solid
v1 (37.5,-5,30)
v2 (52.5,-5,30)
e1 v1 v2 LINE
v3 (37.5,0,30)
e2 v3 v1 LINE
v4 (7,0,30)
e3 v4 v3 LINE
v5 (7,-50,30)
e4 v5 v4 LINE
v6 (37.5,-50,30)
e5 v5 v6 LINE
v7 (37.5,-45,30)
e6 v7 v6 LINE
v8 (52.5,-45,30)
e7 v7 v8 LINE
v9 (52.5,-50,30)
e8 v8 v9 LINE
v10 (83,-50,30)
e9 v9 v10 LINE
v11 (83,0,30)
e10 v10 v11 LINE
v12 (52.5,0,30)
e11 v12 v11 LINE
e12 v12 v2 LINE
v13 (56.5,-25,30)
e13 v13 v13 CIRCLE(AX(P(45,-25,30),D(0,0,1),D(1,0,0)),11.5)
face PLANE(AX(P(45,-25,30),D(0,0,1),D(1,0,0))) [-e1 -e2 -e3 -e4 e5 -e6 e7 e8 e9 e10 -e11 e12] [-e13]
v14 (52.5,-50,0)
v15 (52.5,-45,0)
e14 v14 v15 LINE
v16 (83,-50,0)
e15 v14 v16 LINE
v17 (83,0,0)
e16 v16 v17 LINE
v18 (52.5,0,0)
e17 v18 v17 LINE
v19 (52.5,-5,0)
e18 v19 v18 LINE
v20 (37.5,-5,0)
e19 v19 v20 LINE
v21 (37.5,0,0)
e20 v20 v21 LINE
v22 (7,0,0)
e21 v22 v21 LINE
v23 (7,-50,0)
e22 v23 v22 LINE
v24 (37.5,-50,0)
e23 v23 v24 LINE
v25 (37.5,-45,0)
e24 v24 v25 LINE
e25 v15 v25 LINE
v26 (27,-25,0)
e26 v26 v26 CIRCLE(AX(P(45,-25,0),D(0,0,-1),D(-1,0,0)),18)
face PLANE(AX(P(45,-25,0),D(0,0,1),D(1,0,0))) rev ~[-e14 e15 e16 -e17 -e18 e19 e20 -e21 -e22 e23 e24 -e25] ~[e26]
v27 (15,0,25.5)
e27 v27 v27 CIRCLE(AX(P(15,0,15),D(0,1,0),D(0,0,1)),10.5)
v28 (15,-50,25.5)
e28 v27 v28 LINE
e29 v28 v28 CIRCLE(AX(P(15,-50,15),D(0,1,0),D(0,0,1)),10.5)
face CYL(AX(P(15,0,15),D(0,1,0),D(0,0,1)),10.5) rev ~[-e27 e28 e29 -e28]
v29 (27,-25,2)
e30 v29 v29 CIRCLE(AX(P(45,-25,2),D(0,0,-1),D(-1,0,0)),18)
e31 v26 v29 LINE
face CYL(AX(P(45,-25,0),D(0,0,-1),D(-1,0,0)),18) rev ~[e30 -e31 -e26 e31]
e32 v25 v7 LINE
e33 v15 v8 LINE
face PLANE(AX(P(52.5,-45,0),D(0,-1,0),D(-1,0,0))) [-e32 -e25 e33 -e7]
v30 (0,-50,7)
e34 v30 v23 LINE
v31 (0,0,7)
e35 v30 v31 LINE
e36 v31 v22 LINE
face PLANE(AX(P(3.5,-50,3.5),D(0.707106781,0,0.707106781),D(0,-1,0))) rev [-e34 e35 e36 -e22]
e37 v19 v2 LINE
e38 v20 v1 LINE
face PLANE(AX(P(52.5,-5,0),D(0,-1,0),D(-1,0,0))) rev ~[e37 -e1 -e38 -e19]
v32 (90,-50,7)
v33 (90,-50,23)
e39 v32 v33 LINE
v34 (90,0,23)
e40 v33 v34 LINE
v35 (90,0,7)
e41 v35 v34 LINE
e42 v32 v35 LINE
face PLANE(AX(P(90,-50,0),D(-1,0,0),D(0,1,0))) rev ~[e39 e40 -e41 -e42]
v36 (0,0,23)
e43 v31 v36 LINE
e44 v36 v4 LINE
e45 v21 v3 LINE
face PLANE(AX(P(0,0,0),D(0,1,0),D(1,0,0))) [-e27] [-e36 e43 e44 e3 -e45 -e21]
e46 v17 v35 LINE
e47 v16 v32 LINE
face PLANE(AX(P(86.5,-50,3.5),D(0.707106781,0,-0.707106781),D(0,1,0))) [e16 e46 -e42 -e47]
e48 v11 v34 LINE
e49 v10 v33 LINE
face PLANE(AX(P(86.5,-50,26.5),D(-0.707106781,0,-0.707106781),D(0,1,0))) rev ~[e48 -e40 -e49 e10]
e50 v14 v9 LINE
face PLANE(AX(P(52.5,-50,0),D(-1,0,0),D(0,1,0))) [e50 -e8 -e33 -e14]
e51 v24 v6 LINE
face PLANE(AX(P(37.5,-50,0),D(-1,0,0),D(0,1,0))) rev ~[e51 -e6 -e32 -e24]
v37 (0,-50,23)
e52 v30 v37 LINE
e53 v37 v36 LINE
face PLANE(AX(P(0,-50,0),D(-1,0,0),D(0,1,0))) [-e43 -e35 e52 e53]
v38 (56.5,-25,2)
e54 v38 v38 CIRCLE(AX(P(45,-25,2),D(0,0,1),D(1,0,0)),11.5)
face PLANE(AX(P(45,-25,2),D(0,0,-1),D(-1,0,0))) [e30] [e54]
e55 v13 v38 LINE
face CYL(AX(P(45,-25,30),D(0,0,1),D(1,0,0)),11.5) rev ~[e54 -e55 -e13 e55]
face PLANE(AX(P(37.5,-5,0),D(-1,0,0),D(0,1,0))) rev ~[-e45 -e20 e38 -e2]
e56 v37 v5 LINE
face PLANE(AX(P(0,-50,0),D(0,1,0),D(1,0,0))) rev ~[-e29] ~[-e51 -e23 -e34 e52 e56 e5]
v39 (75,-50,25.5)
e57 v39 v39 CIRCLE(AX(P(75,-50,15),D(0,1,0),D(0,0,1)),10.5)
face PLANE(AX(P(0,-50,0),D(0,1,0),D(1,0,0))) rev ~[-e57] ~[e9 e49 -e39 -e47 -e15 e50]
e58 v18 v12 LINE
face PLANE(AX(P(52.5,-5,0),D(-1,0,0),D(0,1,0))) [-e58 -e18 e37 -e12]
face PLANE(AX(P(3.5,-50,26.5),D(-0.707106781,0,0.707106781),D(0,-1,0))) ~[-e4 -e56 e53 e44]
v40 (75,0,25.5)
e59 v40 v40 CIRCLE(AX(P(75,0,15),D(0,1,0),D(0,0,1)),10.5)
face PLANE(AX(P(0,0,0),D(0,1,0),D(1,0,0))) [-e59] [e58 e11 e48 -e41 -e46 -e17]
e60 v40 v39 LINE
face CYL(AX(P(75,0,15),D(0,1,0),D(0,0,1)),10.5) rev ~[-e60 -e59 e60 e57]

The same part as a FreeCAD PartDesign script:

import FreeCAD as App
import Part
import Sketcher


def edges_at(feature, points):
    """Names of the edges that pass closest to the given points."""
    edges = feature.Shape.Edges
    near = lambda p: min(range(len(edges)), key=lambda i: edges[i].distToShape(Part.Vertex(*p))[0])
    return sorted({f"Edge{near(p) + 1}" for p in points})

doc = App.newDocument("Part")
params = doc.addObject("Spreadsheet::Sheet", "Params")
for row, (alias, value) in enumerate([
    ("sketch1_width", "90 mm"),
    ("sketch1_height", "50 mm"),
    ("pad1_length", "30 mm"),
    ("sketch2_diameter", "21 mm"),
    ("chamfer_size", "7 mm"),
    ("sketch3_diameter", "36 mm"),
    ("pocket2_length", "2 mm"),
    ("sketch4_diameter", "23 mm"),
    ("pocket3_length", "120 mm"),
    ("sketch5_width", "15 mm"),
    ("sketch5_height", "5 mm"),
    ("pocket4_length", "70 mm"),
], start=1):
    params.set(f"A{row}", alias)
    params.set(f"B{row}", "=" + value)
    params.setAlias(f"B{row}", alias)

body = doc.addObject("PartDesign::Body", "Body")

# Sketch on XY plane
sketch1 = body.newObject("Sketcher::SketchObject", "Sketch")
sketch1.AttachmentSupport = (doc.getObject("XY_Plane"), [""])
sketch1.MapMode = "FlatFace"
sketch1.addGeometry([
    Part.LineSegment(App.Vector(0, 0, 0), App.Vector(0, -50, 0)),
    Part.LineSegment(App.Vector(0, -50, 0), App.Vector(90, -50, 0)),
    Part.LineSegment(App.Vector(90, -50, 0), App.Vector(90, 0, 0)),
    Part.LineSegment(App.Vector(90, 0, 0), App.Vector(0, 0, 0)),
], False)
sketch1.addConstraint([
    Sketcher.Constraint("Coincident", 0, 2, 1, 1),
    Sketcher.Constraint("Coincident", 1, 2, 2, 1),
    Sketcher.Constraint("Coincident", 2, 2, 3, 1),
    Sketcher.Constraint("Coincident", 3, 2, 0, 1),
    Sketcher.Constraint("Vertical", 0),
    Sketcher.Constraint("Horizontal", 1),
    Sketcher.Constraint("Vertical", 2),
    Sketcher.Constraint("Horizontal", 3),
    Sketcher.Constraint("Coincident", 3, 2, -1, 1),
    Sketcher.Constraint("DistanceX", 1, 1, 1, 2, 90.0),
    Sketcher.Constraint("DistanceY", 0, 2, 0, 1, 50.0),
])
sketch1.setExpression("Constraints[9]", "Params.sketch1_width")
sketch1.setExpression("Constraints[10]", "Params.sketch1_height")
pad1 = body.newObject("PartDesign::Pad", "Pad")
pad1.Profile = sketch1
pad1.setExpression("Length", "Params.pad1_length")

# Sketch on XZ plane
sketch2 = body.newObject("Sketcher::SketchObject", "Sketch001")
sketch2.AttachmentSupport = (doc.getObject("XZ_Plane"), [""])
sketch2.MapMode = "FlatFace"
sketch2.addGeometry([
    Part.Circle(App.Vector(15, 15, 0), App.Vector(0, 0, 1), 10),
    Part.Circle(App.Vector(75, 15, 0), App.Vector(0, 0, 1), 10),
], False)
sketch2.addConstraint([
    Sketcher.Constraint("Equal", 0, 1),
    Sketcher.Constraint("Horizontal", 0, 3, 1, 3),
    Sketcher.Constraint("Diameter", 0, 21.0),
    Sketcher.Constraint("DistanceX", -1, 1, 0, 3, 15.0),
    Sketcher.Constraint("DistanceY", -1, 1, 0, 3, 15.0),
    Sketcher.Constraint("DistanceX", -1, 1, 1, 3, 75.0),
])
sketch2.setExpression("Constraints[2]", "Params.sketch2_diameter")
pocket1 = body.newObject("PartDesign::Pocket", "Pocket")
pocket1.Profile = sketch2
pocket1.Type = "ThroughAll"
pocket1.Reversed = True
doc.recompute()

chamfer = body.newObject("PartDesign::Chamfer", "Chamfer")
chamfer.Base = (pocket1, edges_at(pocket1, [
    (90, -25, 30),
    (0, -25, 30),
    (90, -25, 0),
    (0, -25, 0),
]))
chamfer.setExpression("Size", "Params.chamfer_size")

# Sketch on XY plane
sketch3 = body.newObject("Sketcher::SketchObject", "Sketch002")
sketch3.AttachmentSupport = (doc.getObject("XY_Plane"), [""])
sketch3.MapMode = "FlatFace"
sketch3.addGeometry(Part.Circle(App.Vector(45, -25, 0), App.Vector(0, 0, 1), 18), False)
sketch3.addConstraint([
    Sketcher.Constraint("Diameter", 0, 36.0),
    Sketcher.Constraint("DistanceX", -1, 1, 0, 3, 45.0),
    Sketcher.Constraint("DistanceY", 0, 3, -1, 1, 25.0),
])
sketch3.setExpression("Constraints[0]", "Params.sketch3_diameter")
pocket2 = body.newObject("PartDesign::Pocket", "Pocket001")
pocket2.Profile = sketch3
pocket2.setExpression("Length", "Params.pocket2_length")
pocket2.Reversed = True

# Sketch on XY plane
sketch4 = body.newObject("Sketcher::SketchObject", "Sketch003")
sketch4.AttachmentSupport = (doc.getObject("XY_Plane"), [""])
sketch4.MapMode = "FlatFace"
sketch4.AttachmentOffset = App.Placement(App.Vector(0, 0, 30), App.Rotation())
sketch4.addGeometry(Part.Circle(App.Vector(45, -25, 0), App.Vector(0, 0, 1), 12), False)
sketch4.addConstraint([
    Sketcher.Constraint("Diameter", 0, 23.0),
    Sketcher.Constraint("DistanceX", -1, 1, 0, 3, 45.0),
    Sketcher.Constraint("DistanceY", 0, 3, -1, 1, 25.0),
])
sketch4.setExpression("Constraints[0]", "Params.sketch4_diameter")
pocket3 = body.newObject("PartDesign::Pocket", "Pocket002")
pocket3.Profile = sketch4
pocket3.setExpression("Length", "Params.pocket3_length")

# Sketch on XY plane
sketch5 = body.newObject("Sketcher::SketchObject", "Sketch004")
sketch5.AttachmentSupport = (doc.getObject("XY_Plane"), [""])
sketch5.MapMode = "FlatFace"
sketch5.addGeometry([
    Part.LineSegment(App.Vector(52, 0, 0), App.Vector(52, -5, 0)),  # 0
    Part.LineSegment(App.Vector(52, -5, 0), App.Vector(38, -5, 0)),  # 1
    Part.LineSegment(App.Vector(38, -5, 0), App.Vector(38, 0, 0)),  # 2
    Part.LineSegment(App.Vector(38, 0, 0), App.Vector(52, 0, 0)),  # 3
    Part.LineSegment(App.Vector(52, -45, 0), App.Vector(52, -50, 0)),  # 4
    Part.LineSegment(App.Vector(52, -50, 0), App.Vector(38, -50, 0)),  # 5
    Part.LineSegment(App.Vector(38, -50, 0), App.Vector(38, -45, 0)),  # 6
    Part.LineSegment(App.Vector(38, -45, 0), App.Vector(52, -45, 0)),  # 7
], False)
sketch5.addConstraint([
    Sketcher.Constraint("Coincident", 0, 2, 1, 1),
    Sketcher.Constraint("Coincident", 1, 2, 2, 1),
    Sketcher.Constraint("Coincident", 2, 2, 3, 1),
    Sketcher.Constraint("Coincident", 3, 2, 0, 1),
    Sketcher.Constraint("Coincident", 4, 2, 5, 1),
    Sketcher.Constraint("Coincident", 5, 2, 6, 1),
    Sketcher.Constraint("Coincident", 6, 2, 7, 1),
    Sketcher.Constraint("Coincident", 7, 2, 4, 1),
    Sketcher.Constraint("Vertical", 0),
    Sketcher.Constraint("Horizontal", 1),
    Sketcher.Constraint("Vertical", 2),
    Sketcher.Constraint("Horizontal", 3),
    Sketcher.Constraint("Vertical", 4),
    Sketcher.Constraint("Horizontal", 5),
    Sketcher.Constraint("Vertical", 6),
    Sketcher.Constraint("Horizontal", 7),
    Sketcher.Constraint("PointOnObject", 2, 2, -1),
    Sketcher.Constraint("Vertical", 3, 2, 4, 2),
    Sketcher.Constraint("Vertical", 2, 2, 5, 2),
    Sketcher.Constraint("Equal", 2, 4),
    Sketcher.Constraint("DistanceX", 1, 2, 1, 1, 15.0),
    Sketcher.Constraint("DistanceY", 0, 2, 0, 1, 5.0),
    Sketcher.Constraint("DistanceY", 4, 2, -1, 1, 50.0),
    Sketcher.Constraint("DistanceX", -1, 1, 0, 2, 52.5),
])
sketch5.setExpression("Constraints[20]", "Params.sketch5_width")
sketch5.setExpression("Constraints[21]", "Params.sketch5_height")
pocket4 = body.newObject("PartDesign::Pocket", "Pocket003")
pocket4.Profile = sketch5
pocket4.setExpression("Length", "Params.pocket4_length")
pocket4.Reversed = True

doc.recompute()
